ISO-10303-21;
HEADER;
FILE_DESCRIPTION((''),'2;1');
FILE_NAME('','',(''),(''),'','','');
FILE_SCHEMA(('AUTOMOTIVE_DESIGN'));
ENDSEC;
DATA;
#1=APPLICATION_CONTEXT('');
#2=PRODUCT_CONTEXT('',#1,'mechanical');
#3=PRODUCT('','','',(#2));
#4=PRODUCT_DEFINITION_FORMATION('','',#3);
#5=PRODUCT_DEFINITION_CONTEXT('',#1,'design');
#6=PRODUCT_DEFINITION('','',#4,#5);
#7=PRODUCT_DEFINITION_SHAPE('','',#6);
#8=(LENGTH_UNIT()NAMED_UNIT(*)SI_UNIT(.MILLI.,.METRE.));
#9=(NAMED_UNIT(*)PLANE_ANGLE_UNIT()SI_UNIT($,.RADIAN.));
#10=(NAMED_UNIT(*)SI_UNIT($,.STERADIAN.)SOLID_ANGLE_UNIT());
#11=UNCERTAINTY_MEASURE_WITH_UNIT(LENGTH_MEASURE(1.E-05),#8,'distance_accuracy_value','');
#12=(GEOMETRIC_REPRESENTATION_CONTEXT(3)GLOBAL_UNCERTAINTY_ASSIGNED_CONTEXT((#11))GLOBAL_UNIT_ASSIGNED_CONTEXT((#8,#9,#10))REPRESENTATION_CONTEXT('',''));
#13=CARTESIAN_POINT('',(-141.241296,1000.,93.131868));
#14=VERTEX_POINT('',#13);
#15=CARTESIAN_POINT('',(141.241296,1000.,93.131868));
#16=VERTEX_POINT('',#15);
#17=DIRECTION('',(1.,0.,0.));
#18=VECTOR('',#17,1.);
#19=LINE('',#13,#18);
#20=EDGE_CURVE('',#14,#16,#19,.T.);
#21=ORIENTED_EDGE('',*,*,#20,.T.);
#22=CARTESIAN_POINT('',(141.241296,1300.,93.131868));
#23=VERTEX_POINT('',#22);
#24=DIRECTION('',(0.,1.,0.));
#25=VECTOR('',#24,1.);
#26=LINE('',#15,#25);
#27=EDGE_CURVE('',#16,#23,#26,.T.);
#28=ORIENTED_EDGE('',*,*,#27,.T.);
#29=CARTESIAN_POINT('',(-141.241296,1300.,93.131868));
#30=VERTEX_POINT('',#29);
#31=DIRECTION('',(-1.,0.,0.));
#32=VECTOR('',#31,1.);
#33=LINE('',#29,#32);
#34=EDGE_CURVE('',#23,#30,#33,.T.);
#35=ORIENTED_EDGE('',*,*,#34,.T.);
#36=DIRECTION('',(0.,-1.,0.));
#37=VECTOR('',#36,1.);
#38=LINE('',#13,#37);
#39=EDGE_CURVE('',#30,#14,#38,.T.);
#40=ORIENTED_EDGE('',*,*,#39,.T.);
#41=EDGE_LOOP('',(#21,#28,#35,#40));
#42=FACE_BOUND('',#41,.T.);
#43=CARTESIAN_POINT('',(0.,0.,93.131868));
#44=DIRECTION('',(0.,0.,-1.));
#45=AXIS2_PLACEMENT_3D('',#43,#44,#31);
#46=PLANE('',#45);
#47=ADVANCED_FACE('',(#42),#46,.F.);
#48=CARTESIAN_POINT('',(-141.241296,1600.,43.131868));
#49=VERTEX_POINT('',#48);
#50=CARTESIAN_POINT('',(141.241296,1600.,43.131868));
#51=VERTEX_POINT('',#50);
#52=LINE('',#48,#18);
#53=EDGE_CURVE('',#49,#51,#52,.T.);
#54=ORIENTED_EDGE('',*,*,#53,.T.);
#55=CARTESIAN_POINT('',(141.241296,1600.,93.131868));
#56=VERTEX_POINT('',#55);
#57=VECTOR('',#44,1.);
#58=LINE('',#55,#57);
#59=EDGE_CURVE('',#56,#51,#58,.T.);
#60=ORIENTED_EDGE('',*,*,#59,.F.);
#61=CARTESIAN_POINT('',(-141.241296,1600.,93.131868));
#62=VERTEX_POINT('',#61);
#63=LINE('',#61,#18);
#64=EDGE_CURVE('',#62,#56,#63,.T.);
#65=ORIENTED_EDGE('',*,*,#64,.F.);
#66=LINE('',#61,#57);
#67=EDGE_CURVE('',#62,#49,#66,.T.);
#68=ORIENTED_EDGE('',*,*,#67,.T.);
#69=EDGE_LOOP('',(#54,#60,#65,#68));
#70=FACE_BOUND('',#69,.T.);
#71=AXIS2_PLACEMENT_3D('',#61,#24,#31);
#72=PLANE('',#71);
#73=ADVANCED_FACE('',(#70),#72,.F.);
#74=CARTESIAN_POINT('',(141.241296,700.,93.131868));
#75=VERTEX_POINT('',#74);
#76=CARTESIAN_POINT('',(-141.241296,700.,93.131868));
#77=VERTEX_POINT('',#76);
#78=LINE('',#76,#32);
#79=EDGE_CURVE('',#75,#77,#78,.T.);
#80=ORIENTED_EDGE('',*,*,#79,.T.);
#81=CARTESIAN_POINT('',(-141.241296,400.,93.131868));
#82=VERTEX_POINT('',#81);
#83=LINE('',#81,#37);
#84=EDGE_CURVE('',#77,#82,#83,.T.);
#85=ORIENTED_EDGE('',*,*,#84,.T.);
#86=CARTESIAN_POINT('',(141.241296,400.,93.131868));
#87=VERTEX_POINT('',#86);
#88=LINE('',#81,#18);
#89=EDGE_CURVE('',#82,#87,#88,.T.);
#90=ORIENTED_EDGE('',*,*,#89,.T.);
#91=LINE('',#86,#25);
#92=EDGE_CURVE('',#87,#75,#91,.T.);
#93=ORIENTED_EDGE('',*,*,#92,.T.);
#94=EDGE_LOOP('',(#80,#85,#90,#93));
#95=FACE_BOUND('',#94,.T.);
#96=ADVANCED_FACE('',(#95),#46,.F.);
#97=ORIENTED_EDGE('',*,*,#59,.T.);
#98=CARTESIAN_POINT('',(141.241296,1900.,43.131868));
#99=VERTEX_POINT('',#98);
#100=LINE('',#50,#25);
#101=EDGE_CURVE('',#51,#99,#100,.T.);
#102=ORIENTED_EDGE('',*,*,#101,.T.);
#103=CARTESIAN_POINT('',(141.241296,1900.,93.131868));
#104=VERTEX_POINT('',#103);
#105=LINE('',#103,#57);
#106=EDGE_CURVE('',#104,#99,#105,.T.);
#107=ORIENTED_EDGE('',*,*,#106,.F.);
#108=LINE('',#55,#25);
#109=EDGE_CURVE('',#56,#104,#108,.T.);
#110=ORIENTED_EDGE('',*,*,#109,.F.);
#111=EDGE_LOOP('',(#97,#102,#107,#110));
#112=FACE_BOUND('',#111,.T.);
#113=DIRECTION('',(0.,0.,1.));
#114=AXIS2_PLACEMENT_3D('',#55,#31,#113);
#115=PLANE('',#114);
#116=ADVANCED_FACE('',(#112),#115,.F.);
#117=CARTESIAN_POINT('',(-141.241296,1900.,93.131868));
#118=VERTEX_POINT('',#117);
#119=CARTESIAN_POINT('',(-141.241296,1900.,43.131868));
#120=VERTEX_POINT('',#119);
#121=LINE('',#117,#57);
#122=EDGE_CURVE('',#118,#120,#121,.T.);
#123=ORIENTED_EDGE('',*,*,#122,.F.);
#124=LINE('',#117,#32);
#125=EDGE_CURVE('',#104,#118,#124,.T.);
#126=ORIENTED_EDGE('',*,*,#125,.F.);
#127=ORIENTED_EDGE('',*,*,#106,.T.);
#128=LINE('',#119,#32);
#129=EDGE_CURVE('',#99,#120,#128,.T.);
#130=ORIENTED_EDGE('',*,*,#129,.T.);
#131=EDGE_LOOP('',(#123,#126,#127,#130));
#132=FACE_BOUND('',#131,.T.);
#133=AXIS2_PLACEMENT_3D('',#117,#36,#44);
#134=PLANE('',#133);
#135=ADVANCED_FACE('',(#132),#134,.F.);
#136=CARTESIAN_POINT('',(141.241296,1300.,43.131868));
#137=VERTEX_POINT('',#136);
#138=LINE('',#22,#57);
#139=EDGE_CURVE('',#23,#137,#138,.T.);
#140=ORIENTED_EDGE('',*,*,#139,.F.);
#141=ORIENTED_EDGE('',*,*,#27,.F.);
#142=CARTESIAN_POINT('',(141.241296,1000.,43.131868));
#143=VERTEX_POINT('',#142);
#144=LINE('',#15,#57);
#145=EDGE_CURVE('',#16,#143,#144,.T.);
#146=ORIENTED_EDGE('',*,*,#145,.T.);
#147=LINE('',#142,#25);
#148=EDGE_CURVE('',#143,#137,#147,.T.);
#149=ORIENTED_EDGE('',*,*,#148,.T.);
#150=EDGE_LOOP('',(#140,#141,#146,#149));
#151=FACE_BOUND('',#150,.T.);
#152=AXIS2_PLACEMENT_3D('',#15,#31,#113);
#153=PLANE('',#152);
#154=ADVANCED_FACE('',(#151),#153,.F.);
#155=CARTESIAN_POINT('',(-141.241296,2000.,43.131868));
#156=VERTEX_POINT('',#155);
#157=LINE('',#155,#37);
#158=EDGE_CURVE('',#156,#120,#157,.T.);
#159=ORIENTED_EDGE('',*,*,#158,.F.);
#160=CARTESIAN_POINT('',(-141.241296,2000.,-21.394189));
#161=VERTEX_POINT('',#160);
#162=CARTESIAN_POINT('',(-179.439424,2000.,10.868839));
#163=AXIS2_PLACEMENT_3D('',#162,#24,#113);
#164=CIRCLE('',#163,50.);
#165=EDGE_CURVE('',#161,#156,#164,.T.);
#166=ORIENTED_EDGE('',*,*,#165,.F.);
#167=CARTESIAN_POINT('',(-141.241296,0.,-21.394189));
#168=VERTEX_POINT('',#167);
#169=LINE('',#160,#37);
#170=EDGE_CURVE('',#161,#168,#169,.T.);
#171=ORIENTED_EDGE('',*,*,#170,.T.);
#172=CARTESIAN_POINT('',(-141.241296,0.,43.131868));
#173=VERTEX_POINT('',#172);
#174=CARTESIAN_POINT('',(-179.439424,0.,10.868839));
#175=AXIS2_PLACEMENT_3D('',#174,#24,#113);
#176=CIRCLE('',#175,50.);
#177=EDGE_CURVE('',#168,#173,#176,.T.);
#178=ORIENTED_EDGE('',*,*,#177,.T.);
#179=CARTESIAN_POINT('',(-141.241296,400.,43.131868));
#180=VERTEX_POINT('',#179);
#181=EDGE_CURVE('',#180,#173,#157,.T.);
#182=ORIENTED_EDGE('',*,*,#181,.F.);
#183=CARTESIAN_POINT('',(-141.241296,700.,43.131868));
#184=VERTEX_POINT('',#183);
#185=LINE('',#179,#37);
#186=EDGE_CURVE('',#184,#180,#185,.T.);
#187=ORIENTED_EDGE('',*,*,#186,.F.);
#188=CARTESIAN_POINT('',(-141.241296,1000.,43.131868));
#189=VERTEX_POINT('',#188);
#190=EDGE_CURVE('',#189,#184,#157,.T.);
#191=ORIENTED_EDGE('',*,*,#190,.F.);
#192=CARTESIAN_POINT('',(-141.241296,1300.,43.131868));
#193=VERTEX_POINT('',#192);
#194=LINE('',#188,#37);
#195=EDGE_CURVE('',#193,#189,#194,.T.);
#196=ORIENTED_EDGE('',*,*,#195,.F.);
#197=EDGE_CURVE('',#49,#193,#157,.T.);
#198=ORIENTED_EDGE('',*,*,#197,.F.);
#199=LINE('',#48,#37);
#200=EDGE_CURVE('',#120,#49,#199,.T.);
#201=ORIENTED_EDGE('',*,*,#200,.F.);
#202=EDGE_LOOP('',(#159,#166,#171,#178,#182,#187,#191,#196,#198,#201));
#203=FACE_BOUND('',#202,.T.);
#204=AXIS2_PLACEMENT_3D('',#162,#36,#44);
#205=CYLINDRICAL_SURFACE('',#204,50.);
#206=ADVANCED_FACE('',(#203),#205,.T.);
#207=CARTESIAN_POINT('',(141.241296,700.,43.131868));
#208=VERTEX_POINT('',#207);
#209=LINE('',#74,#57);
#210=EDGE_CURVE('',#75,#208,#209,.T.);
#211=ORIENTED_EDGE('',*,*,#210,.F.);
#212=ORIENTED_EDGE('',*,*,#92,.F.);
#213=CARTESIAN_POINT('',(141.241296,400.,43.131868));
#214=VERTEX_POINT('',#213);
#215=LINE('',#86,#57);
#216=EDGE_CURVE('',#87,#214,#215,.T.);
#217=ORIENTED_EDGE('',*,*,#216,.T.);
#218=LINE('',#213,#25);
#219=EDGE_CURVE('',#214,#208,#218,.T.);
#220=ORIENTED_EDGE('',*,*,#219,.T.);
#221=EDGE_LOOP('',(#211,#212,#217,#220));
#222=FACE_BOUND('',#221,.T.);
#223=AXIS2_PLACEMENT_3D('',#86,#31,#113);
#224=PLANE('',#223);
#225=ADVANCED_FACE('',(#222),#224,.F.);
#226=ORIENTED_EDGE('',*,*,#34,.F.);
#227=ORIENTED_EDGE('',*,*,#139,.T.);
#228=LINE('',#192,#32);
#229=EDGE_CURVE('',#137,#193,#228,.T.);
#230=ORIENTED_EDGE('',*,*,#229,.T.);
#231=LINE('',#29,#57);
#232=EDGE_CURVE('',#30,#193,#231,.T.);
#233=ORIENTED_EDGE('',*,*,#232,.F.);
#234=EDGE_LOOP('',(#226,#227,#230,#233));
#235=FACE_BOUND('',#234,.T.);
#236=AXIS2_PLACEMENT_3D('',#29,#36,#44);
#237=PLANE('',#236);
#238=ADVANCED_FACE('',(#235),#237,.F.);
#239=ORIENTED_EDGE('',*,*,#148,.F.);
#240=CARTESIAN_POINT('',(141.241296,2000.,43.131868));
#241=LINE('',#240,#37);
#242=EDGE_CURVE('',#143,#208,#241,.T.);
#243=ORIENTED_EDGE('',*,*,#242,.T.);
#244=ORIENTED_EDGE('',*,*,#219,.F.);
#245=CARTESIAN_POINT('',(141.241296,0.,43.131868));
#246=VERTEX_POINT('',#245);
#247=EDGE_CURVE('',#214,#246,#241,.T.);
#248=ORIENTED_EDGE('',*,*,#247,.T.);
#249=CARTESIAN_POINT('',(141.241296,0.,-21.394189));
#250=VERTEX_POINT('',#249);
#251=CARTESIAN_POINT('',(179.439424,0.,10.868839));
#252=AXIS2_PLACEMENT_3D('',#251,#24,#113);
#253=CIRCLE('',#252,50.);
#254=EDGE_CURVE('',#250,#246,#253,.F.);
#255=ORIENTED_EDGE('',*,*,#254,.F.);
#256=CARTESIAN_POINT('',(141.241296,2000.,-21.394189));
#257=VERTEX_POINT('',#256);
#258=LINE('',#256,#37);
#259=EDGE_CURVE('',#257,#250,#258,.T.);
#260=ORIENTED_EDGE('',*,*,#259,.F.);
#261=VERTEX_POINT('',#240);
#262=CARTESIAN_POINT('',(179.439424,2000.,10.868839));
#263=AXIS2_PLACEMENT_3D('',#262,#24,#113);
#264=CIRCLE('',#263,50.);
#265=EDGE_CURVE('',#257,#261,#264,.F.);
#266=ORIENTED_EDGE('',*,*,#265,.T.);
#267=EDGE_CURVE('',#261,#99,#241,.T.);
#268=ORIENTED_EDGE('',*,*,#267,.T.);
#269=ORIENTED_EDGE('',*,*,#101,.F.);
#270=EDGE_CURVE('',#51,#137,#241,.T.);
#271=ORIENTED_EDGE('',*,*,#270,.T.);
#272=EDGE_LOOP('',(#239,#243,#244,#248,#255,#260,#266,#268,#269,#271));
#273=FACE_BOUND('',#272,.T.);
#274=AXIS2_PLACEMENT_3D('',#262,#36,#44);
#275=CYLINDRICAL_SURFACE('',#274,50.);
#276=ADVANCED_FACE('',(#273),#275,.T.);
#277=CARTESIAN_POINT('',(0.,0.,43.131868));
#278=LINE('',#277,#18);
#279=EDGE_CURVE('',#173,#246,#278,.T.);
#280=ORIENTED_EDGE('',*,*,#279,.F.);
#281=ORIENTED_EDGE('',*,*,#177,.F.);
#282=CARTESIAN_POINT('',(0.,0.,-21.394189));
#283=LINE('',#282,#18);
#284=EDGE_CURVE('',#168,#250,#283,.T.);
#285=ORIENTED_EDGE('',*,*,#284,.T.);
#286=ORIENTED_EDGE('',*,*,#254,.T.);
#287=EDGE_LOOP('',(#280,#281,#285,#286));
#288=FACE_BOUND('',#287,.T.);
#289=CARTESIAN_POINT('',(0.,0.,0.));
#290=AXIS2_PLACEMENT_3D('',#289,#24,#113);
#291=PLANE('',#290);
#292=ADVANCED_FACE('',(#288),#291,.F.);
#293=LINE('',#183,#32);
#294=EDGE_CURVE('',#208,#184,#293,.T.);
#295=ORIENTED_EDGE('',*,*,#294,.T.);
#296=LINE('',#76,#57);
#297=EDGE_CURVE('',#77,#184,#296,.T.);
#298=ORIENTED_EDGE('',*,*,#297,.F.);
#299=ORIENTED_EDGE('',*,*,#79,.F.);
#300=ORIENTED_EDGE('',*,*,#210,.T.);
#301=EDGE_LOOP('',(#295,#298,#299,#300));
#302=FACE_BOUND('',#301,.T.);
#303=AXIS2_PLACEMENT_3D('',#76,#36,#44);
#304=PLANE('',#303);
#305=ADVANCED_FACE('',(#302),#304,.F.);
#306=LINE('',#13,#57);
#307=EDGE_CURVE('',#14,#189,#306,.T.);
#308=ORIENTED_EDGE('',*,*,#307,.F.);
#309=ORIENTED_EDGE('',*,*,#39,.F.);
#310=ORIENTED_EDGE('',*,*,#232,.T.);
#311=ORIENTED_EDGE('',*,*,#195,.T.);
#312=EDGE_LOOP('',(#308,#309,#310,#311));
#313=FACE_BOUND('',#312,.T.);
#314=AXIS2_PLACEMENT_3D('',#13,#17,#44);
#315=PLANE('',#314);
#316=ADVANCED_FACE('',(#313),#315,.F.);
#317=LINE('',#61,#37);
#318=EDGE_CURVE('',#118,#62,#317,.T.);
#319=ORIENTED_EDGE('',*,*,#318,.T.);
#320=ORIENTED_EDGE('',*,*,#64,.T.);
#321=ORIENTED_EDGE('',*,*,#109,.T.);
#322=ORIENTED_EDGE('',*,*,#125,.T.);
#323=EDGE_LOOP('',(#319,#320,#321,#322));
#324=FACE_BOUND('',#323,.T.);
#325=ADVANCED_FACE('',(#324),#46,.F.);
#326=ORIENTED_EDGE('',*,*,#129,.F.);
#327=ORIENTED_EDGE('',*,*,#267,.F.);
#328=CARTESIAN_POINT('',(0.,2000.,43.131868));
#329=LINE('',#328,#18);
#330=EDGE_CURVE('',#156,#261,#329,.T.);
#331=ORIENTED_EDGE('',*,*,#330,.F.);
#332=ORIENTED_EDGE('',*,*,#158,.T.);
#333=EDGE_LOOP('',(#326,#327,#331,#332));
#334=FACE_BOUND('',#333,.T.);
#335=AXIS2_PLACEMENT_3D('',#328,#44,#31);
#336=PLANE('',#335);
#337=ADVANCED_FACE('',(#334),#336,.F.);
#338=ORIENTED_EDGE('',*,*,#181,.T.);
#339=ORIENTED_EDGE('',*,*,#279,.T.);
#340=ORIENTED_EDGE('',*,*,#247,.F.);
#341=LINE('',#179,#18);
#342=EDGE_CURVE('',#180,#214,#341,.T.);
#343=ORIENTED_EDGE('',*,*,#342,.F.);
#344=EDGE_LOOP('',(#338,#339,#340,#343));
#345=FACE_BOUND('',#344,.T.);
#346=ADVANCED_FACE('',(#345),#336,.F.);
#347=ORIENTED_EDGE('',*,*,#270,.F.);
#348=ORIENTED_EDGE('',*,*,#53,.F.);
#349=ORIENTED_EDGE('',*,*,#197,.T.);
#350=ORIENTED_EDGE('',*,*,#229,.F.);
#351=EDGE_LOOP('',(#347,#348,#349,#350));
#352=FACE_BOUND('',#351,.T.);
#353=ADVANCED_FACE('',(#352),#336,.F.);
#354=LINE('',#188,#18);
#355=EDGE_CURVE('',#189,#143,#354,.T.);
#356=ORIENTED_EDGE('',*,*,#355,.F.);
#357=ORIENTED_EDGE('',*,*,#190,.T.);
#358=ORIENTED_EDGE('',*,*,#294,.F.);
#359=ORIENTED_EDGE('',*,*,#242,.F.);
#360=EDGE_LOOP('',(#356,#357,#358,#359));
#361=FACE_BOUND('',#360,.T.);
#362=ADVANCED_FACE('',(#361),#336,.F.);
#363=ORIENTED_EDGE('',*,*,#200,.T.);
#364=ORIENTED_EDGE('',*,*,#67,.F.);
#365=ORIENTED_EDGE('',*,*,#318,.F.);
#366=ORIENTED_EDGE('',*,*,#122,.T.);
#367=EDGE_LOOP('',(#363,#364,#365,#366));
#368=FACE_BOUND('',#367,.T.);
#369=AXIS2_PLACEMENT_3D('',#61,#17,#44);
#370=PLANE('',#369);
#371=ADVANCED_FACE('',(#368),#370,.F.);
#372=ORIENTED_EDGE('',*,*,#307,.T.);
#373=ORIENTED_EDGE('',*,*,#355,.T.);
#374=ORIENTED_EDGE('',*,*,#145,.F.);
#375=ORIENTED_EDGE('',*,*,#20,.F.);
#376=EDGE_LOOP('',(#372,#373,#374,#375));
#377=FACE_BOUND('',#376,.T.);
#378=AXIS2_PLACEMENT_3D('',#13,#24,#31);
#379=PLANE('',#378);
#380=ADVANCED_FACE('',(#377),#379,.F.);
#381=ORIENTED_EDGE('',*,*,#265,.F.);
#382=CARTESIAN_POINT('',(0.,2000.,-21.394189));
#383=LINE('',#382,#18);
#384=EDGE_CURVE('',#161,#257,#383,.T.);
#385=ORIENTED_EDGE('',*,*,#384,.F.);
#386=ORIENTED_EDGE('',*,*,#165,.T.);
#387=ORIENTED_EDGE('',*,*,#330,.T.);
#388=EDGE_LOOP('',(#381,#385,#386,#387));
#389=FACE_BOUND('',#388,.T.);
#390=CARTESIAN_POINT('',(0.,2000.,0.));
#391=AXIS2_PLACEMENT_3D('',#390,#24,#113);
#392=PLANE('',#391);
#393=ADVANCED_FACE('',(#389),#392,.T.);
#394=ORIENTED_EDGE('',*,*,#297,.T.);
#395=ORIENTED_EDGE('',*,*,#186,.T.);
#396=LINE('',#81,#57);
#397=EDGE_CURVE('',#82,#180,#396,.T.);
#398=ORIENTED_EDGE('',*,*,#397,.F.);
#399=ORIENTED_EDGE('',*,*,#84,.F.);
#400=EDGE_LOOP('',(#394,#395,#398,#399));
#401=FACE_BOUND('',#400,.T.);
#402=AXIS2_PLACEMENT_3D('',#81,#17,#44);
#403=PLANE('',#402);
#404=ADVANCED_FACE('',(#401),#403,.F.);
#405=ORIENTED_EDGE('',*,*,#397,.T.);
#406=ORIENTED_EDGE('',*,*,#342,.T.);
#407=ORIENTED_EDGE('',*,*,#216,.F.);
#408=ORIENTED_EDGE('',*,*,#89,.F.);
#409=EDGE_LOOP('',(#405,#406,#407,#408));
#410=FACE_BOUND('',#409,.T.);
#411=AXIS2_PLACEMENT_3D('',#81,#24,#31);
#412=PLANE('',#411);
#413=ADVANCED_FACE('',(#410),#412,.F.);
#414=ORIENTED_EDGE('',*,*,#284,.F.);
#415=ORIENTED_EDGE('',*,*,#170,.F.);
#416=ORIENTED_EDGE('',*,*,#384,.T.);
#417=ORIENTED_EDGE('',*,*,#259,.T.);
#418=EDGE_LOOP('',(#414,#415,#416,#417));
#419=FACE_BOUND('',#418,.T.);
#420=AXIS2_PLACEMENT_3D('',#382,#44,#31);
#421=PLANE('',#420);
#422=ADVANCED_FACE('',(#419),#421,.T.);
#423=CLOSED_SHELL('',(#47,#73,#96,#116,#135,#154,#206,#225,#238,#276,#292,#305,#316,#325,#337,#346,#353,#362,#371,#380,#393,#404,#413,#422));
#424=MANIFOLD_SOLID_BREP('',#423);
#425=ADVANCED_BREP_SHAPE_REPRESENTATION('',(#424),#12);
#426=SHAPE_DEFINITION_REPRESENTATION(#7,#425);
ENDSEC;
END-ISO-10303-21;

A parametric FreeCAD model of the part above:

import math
import FreeCAD as App
import Part
import Sketcher
from FreeCAD import Vector
Q = App.Units.Quantity


def add_polygon(sketch, points):
    """Adds a closed chain of lines whose ends are joined by coincident constraints."""
    first, n = sketch.GeometryCount, len(points)
    for a, b in zip(points, points[1:] + points[:1]):
        sketch.addGeometry(Part.LineSegment(App.Vector(*a, 0), App.Vector(*b, 0)), False)
    for i in range(n):
        sketch.addConstraint(Sketcher.Constraint("Coincident", first + i, 2, first + (i + 1) % n, 1))

doc = App.newDocument("Part")
params = doc.addObject("Spreadsheet::Sheet", "Params")
for row, (alias, value) in enumerate([
    ("sketch1_radius", "50 mm"),
    ("pad1_length", "2000 mm"),
    ("sketch2_height", "300 mm"),
    ("pad2_length", "50 mm"),
], start=1):
    params.set(f"A{row}", alias)
    params.set(f"B{row}", "=" + value)
    params.setAlias(f"B{row}", alias)

body = doc.addObject("PartDesign::Body", "Body")

sketch1 = body.newObject("Sketcher::SketchObject", "Sketch")
sketch1.AttachmentSupport = (doc.getObject("XZ_Plane"), [""])
sketch1.MapMode = "FlatFace"
sketch1.addGeometry([
    Part.LineSegment(Vector(141, -21, 0), Vector(-141, -21, 0)),
    Part.ArcOfCircle(Part.Circle(Vector(-179, 11, 0), Vector(0, 0, 1), 50), math.radians(40), math.radians(320)),
    Part.LineSegment(Vector(-141, 43, 0), Vector(141, 43, 0)),
    Part.ArcOfCircle(Part.Circle(Vector(179, 11, 0), Vector(0, 0, 1), 50), math.radians(-140), math.radians(140)),
], False)
sketch1.addConstraint([
    Sketcher.Constraint("Coincident", 0, 2, 1, 2),
    Sketcher.Constraint("Coincident", 1, 1, 2, 1),
    Sketcher.Constraint("Coincident", 2, 2, 3, 2),
    Sketcher.Constraint("Coincident", 3, 1, 0, 1),
    Sketcher.Constraint("Horizontal", 0),
    Sketcher.Constraint("Horizontal", 2),
    Sketcher.Constraint("Equal", 1, 3),
    Sketcher.Constraint("Symmetric", 1, 3, 3, 3, -2),
    Sketcher.Constraint("Vertical", 0, 2, 1, 1),
    Sketcher.Constraint("Radius", 1, Q("50 mm")),
    Sketcher.Constraint("DistanceX", 0, 2, 0, 1, Q("282.482592 mm")),
    Sketcher.Constraint("DistanceY", -1, 1, 1, 3, Q("10.868839 mm")),
    Sketcher.Constraint("DistanceY", 0, 2, -1, 1, Q("21.394189 mm")),
])
sketch1.setExpression("Constraints[9]", "Params.sketch1_radius")
pad1 = body.newObject("PartDesign::Pad", "Pad")
pad1.Profile = sketch1
pad1.setExpression("Length", "Params.pad1_length")
pad1.Reversed = True

sketch2 = body.newObject("Sketcher::SketchObject", "Sketch001")
sketch2.AttachmentSupport = (doc.getObject("XY_Plane"), [""])
sketch2.MapMode = "FlatFace"
sketch2.AttachmentOffset = App.Placement(Vector(0, 0, 43.131868), App.Rotation())
add_polygon(sketch2, [(-141, 700), (-141, 400), (141, 400), (141, 700)])
add_polygon(sketch2, [(-141, 1300), (-141, 1000), (141, 1000), (141, 1300)])
add_polygon(sketch2, [(-141, 1900), (-141, 1600), (141, 1600), (141, 1900)])
sketch2.addConstraint([
    Sketcher.Constraint("Vertical", 0),
    Sketcher.Constraint("Horizontal", 1),
    Sketcher.Constraint("Vertical", 2),
    Sketcher.Constraint("Horizontal", 3),
    Sketcher.Constraint("Vertical", 4),
    Sketcher.Constraint("Horizontal", 5),
    Sketcher.Constraint("Vertical", 6),
    Sketcher.Constraint("Horizontal", 7),
    Sketcher.Constraint("Vertical", 8),
    Sketcher.Constraint("Horizontal", 9),
    Sketcher.Constraint("Vertical", 10),
    Sketcher.Constraint("Horizontal", 11),
    Sketcher.Constraint("Vertical", 3, 2, 4, 2),
    Sketcher.Constraint("Vertical", 2, 2, 5, 2),
    Sketcher.Constraint("Vertical", 7, 2, 8, 2),
    Sketcher.Constraint("Vertical", 6, 2, 9, 2),
    Sketcher.Constraint("Equal", 2, 4),
    Sketcher.Constraint("Equal", 6, 8),
    Sketcher.Constraint("DistanceY", 0, 2, 0, 1, Q("300 mm")),
    Sketcher.Constraint("DistanceY", -1, 1, 0, 2, Q("400 mm")),
    Sketcher.Constraint("DistanceY", -1, 1, 4, 2, Q("1000 mm")),
    Sketcher.Constraint("DistanceY", -1, 1, 8, 2, Q("1600 mm")),
    Sketcher.Constraint("DistanceX", 1, 1, 1, 2, Q("282.482592 mm")),
    Sketcher.Constraint("DistanceX", 0, 2, -1, 1, Q("141.241296 mm")),
])
sketch2.setExpression("Constraints[30]", "Params.sketch2_height")
pad2 = body.newObject("PartDesign::Pad", "Pad001")
pad2.Profile = sketch2
pad2.setExpression("Length", "Params.pad2_length")

doc.recompute()
